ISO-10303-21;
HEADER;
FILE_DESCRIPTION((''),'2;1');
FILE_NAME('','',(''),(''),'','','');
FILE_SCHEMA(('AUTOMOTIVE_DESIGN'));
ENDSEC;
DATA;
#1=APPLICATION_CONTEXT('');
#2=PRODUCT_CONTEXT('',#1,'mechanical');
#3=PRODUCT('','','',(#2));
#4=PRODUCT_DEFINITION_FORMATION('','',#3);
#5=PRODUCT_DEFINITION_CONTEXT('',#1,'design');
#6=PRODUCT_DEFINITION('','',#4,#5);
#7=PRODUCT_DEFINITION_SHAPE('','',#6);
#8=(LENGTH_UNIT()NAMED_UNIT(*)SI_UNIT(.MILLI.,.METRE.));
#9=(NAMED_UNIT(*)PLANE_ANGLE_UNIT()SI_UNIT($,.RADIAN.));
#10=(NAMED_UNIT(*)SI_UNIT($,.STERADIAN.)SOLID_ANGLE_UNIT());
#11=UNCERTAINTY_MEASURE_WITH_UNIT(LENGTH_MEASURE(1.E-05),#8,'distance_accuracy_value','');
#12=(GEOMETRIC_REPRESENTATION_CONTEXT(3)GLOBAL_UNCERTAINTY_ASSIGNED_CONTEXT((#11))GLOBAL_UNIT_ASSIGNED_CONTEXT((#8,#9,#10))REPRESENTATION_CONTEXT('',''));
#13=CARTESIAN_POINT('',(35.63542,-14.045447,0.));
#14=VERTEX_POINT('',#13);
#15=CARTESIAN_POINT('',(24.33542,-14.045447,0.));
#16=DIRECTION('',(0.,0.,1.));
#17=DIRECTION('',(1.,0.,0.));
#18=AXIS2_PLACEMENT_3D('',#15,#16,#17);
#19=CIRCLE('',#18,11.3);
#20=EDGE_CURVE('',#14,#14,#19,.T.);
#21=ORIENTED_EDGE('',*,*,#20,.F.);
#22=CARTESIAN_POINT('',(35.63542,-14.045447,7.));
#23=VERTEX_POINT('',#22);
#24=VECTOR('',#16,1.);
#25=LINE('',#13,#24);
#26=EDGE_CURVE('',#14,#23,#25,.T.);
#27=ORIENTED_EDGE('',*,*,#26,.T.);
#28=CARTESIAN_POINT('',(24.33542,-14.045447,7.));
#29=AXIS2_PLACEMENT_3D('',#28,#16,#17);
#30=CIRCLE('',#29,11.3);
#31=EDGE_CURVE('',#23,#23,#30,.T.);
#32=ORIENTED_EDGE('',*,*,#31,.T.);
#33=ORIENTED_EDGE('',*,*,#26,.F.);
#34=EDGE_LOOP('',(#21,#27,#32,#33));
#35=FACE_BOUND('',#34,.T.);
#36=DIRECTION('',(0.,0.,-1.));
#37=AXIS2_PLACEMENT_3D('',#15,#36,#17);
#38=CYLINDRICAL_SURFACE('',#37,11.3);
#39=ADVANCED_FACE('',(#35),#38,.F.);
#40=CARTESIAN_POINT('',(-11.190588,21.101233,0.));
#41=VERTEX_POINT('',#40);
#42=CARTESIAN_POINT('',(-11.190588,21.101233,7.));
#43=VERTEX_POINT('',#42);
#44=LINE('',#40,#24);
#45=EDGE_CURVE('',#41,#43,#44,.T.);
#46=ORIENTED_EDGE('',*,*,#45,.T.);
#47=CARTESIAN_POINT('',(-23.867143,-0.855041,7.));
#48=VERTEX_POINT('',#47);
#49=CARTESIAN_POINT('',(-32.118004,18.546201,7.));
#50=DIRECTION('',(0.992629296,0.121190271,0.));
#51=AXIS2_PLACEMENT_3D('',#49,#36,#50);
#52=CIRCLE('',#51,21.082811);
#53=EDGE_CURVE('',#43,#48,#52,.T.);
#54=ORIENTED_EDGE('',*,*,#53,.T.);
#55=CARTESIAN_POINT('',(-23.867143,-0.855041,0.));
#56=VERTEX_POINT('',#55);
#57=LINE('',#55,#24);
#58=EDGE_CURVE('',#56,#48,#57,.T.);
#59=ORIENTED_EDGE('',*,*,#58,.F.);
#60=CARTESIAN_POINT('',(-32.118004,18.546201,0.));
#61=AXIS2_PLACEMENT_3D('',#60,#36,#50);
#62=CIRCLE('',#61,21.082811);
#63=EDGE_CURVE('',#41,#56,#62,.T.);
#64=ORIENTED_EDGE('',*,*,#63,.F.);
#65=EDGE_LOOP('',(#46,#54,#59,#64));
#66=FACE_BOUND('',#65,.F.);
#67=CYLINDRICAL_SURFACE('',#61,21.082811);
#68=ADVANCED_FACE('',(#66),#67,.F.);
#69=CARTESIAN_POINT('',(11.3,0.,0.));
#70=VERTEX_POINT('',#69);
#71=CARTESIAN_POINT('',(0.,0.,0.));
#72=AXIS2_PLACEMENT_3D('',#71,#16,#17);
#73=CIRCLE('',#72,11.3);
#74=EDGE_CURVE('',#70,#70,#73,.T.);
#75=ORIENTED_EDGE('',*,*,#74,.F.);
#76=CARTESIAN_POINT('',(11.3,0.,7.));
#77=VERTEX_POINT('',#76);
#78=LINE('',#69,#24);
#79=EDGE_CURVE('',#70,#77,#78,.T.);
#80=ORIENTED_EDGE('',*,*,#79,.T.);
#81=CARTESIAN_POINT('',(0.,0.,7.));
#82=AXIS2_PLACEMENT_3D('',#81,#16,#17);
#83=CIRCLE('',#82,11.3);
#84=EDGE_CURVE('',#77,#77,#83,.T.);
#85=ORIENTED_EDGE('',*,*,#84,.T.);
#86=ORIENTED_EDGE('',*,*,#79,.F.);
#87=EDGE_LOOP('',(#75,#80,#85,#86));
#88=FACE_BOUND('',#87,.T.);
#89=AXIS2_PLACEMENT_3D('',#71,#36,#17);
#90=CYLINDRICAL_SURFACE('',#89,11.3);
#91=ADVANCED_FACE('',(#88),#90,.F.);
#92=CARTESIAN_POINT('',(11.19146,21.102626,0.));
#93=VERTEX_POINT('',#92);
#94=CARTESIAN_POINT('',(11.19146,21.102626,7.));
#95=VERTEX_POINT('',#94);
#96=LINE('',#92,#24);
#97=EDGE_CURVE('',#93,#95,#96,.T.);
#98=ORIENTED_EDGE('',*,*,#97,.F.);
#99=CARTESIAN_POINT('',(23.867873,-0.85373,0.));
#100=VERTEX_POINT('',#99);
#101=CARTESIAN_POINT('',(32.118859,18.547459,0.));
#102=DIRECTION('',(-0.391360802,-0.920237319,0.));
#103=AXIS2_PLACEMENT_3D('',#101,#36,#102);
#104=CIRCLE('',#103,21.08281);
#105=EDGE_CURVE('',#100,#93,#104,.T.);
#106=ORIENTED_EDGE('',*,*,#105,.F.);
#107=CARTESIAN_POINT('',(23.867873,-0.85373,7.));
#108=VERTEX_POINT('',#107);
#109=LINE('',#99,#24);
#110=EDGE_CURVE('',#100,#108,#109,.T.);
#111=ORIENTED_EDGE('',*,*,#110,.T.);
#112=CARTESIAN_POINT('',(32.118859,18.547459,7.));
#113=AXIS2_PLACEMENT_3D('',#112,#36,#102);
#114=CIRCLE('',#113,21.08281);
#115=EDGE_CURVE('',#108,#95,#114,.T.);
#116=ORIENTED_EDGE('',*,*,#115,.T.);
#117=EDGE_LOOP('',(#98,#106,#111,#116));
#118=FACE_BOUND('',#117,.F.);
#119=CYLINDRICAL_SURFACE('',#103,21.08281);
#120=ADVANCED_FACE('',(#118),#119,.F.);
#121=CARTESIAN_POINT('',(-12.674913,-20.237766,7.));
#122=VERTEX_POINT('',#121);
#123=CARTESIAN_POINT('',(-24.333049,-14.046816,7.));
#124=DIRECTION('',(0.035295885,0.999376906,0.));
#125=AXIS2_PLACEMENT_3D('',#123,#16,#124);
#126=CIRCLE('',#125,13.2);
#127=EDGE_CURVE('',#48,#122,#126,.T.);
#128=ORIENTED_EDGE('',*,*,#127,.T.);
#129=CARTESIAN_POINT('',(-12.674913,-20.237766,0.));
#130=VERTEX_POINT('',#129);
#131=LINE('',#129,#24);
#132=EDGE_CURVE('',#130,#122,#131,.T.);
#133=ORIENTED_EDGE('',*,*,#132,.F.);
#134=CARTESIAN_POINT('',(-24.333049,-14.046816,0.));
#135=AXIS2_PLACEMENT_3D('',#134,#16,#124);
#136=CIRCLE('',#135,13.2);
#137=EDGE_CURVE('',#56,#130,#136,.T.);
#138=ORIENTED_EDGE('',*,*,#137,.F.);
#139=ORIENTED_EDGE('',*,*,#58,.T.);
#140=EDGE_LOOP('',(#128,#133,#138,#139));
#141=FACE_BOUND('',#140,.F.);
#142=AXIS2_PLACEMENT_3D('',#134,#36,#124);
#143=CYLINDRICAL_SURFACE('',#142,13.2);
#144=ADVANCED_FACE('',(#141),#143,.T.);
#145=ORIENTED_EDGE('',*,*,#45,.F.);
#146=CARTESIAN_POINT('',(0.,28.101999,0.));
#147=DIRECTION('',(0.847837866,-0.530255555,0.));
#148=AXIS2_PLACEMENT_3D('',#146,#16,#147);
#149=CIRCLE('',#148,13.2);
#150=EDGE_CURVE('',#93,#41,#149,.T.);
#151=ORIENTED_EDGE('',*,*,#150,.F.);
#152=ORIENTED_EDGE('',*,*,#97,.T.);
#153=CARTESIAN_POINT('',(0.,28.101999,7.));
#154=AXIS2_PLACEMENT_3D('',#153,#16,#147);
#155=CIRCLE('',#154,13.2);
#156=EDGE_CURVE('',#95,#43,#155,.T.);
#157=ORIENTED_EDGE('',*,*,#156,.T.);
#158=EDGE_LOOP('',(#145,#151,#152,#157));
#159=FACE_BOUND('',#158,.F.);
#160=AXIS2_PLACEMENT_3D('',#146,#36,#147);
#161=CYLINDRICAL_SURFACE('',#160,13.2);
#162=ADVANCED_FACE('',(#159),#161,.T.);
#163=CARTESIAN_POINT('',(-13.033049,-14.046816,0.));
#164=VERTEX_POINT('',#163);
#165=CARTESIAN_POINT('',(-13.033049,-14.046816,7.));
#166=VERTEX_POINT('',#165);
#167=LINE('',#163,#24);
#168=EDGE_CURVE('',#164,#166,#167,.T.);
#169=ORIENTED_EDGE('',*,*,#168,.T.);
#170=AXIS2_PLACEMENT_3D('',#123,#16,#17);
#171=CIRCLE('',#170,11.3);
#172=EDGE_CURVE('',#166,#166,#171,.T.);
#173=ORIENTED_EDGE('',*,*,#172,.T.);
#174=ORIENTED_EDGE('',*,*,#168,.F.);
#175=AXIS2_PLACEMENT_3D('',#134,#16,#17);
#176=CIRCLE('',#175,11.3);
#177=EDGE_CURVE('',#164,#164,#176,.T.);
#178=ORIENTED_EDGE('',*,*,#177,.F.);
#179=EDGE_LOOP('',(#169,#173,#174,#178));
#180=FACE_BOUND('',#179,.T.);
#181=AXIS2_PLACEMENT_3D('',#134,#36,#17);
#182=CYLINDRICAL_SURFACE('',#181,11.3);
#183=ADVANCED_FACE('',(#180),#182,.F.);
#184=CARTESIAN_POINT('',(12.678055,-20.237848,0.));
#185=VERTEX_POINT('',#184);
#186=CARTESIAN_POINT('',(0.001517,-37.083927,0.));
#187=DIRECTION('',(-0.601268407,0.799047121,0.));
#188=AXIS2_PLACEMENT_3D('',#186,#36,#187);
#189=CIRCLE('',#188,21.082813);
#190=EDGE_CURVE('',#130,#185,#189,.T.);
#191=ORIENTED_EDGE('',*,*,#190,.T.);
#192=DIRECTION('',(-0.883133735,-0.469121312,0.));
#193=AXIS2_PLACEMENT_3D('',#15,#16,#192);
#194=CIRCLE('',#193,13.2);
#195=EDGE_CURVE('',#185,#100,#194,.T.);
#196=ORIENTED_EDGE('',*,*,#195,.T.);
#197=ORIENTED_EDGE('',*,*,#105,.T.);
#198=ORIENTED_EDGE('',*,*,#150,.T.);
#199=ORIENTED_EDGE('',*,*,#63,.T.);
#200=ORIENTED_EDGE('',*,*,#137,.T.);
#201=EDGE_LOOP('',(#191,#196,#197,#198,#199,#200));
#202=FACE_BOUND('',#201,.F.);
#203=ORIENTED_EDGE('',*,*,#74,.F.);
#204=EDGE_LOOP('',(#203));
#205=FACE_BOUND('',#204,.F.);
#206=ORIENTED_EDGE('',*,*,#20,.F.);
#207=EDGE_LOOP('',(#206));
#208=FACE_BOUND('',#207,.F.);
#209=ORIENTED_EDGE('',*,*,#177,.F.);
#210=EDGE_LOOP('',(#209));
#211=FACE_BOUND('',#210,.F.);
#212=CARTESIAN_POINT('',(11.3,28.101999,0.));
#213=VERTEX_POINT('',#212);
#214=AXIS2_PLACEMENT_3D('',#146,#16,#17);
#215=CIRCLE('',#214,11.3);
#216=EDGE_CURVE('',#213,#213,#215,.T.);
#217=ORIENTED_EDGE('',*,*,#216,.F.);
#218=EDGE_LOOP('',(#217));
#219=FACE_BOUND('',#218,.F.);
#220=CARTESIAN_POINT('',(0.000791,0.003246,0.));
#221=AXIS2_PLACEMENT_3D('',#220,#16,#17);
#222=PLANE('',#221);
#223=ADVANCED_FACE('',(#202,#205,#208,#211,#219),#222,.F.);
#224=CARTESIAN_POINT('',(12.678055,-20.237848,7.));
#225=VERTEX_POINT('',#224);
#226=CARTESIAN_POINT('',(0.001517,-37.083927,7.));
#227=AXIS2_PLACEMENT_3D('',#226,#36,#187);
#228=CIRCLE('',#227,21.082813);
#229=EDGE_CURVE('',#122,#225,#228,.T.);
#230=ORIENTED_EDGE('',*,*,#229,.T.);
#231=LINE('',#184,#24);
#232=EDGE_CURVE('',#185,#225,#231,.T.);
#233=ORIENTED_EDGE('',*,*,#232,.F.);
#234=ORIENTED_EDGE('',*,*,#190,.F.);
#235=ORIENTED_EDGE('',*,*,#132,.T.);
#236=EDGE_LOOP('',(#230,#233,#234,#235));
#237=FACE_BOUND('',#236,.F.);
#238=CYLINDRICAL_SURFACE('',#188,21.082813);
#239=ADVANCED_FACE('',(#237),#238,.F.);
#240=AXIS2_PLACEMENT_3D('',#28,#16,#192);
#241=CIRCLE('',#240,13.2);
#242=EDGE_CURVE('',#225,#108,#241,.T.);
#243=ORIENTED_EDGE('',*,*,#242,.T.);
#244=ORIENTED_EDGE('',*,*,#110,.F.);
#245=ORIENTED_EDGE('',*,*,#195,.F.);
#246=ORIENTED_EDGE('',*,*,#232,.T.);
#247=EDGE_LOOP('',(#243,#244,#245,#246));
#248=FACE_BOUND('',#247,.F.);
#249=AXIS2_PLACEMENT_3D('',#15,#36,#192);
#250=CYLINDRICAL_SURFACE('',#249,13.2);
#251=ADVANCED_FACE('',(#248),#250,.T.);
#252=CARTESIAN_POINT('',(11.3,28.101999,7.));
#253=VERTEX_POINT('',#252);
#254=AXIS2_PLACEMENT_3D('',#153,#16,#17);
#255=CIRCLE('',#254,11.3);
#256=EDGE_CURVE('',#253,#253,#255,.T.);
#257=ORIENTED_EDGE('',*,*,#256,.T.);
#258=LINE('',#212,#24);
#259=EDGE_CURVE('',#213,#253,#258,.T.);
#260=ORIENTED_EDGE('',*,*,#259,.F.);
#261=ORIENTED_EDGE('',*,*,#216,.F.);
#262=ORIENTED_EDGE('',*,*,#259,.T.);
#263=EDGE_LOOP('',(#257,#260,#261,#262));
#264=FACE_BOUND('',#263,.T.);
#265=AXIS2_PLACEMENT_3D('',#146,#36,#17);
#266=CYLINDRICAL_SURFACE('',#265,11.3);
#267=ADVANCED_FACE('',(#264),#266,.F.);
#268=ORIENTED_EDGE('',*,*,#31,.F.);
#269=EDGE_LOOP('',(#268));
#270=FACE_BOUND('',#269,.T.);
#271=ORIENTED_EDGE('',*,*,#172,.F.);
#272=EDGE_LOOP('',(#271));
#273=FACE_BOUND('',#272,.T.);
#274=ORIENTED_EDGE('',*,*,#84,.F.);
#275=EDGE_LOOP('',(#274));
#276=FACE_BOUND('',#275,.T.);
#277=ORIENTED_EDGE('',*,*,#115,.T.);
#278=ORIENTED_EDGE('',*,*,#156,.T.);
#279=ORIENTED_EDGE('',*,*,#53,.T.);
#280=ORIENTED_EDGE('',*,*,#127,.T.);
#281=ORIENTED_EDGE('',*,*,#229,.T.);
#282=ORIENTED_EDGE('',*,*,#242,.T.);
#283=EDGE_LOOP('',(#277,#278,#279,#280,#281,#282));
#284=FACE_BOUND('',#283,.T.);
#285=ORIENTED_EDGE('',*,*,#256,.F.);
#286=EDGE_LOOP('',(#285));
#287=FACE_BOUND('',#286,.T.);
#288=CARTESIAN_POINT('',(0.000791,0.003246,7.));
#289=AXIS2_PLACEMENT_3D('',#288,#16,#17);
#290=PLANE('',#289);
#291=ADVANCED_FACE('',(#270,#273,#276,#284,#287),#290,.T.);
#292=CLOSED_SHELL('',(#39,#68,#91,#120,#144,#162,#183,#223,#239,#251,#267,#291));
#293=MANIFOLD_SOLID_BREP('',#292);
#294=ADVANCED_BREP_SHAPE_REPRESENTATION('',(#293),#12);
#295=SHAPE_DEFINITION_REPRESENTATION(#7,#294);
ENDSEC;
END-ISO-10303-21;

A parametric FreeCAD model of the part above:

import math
import FreeCAD as App
import Part
import Sketcher

doc = App.newDocument("Part")
body = doc.addObject("PartDesign::Body", "Body")

# Sketch on XY plane
sketch1 = doc.addObject("Sketcher::SketchObject", "Sketch")
body.addObject(sketch1)
sketch1.AttachmentSupport = (doc.XY_Plane, [""])
sketch1.MapMode = "FlatFace"
sketch1.addGeometry([
    Part.ArcOfCircle(Part.Circle(App.Vector(32, 19, 0), App.Vector(0, 0, 1), 21), math.radians(173), math.radians(247)),  # 0
    Part.ArcOfCircle(Part.Circle(App.Vector(0, 28, 0), App.Vector(0, 0, 1), 13), math.radians(-32), math.radians(212)),  # 1
    Part.ArcOfCircle(Part.Circle(App.Vector(-32, 19, 0), App.Vector(0, 0, 1), 21), math.radians(-67), math.radians(7)),  # 2
    Part.ArcOfCircle(Part.Circle(App.Vector(-24, -14, 0), App.Vector(0, 0, 1), 13), math.radians(88), math.radians(332)),  # 3
    Part.ArcOfCircle(Part.Circle(App.Vector(0, -37, 0), App.Vector(0, 0, 1), 21), math.radians(53), math.radians(127)),  # 4
    Part.ArcOfCircle(Part.Circle(App.Vector(24, -14, 0), App.Vector(0, 0, 1), 13), math.radians(-152), math.radians(92)),  # 5
    Part.Circle(App.Vector(-24, -14, 0), App.Vector(0, 0, 1), 11),  # 6
    Part.Circle(App.Vector(0, 0, 0), App.Vector(0, 0, 1), 11),  # 7
    Part.Circle(App.Vector(24, -14, 0), App.Vector(0, 0, 1), 11),  # 8
    Part.Circle(App.Vector(0, 28, 0), App.Vector(0, 0, 1), 11),  # 9
], False)
sketch1.addConstraint([
    Sketcher.Constraint("Coincident", 0, 1, 1, 1),
    Sketcher.Constraint("Coincident", 1, 2, 2, 2),
    Sketcher.Constraint("Coincident", 2, 1, 3, 1),
    Sketcher.Constraint("Coincident", 3, 2, 4, 2),
    Sketcher.Constraint("Coincident", 4, 1, 5, 1),
    Sketcher.Constraint("Coincident", 5, 2, 0, 2),
    Sketcher.Constraint("Coincident", 7, 3, -1, 1),
    Sketcher.Constraint("Coincident", 6, 3, 3, 3),
    Sketcher.Constraint("Coincident", 8, 3, 5, 3),
    Sketcher.Constraint("Coincident", 9, 3, 1, 3),
    Sketcher.Constraint("Equal", 0, 2),
    Sketcher.Constraint("Equal", 1, 3),
    Sketcher.Constraint("Equal", 3, 5),
    Sketcher.Constraint("Equal", 6, 7),
    Sketcher.Constraint("Equal", 7, 8),
    Sketcher.Constraint("Equal", 8, 9),
    Sketcher.Constraint("PointOnObject", 1, 3, -2),
    Sketcher.Constraint("Diameter", 6, 22.6),
    Sketcher.Constraint("Radius", 1, 13.2),
    Sketcher.Constraint("Radius", 0, 21.08281),
    Sketcher.Constraint("DistanceY", -1, 1, 1, 3, 28.101999),
    Sketcher.Constraint("Radius", 4, 21.082813),
    Sketcher.Constraint("DistanceY", -1, 1, 2, 3, 18.546201),
    Sketcher.Constraint("DistanceX", 0, 1, 0, 3, 20.927399),
    Sketcher.Constraint("DistanceY", 4, 1, 8, 3, 6.192401),
    Sketcher.Constraint("DistanceX", -1, 1, 0, 3, 32.118859),
    Sketcher.Constraint("DistanceX", 3, 3, -1, 1, 24.333049),
    Sketcher.Constraint("DistanceX", -1, 1, 5, 3, 24.33542),
    Sketcher.Constraint("DistanceY", 2, 1, -1, 1, 0.855041),
    Sketcher.Constraint("DistanceY", 4, 1, -1, 1, 20.237848),
    Sketcher.Constraint("DistanceY", 4, 3, 3, 3, 23.037111),
    Sketcher.Constraint("DistanceX", 2, 3, 4, 3, 32.11952),
])
pad1 = doc.addObject("PartDesign::Pad", "Pad")
body.addObject(pad1)
pad1.Profile = sketch1
pad1.Length = 7

doc.recompute()
